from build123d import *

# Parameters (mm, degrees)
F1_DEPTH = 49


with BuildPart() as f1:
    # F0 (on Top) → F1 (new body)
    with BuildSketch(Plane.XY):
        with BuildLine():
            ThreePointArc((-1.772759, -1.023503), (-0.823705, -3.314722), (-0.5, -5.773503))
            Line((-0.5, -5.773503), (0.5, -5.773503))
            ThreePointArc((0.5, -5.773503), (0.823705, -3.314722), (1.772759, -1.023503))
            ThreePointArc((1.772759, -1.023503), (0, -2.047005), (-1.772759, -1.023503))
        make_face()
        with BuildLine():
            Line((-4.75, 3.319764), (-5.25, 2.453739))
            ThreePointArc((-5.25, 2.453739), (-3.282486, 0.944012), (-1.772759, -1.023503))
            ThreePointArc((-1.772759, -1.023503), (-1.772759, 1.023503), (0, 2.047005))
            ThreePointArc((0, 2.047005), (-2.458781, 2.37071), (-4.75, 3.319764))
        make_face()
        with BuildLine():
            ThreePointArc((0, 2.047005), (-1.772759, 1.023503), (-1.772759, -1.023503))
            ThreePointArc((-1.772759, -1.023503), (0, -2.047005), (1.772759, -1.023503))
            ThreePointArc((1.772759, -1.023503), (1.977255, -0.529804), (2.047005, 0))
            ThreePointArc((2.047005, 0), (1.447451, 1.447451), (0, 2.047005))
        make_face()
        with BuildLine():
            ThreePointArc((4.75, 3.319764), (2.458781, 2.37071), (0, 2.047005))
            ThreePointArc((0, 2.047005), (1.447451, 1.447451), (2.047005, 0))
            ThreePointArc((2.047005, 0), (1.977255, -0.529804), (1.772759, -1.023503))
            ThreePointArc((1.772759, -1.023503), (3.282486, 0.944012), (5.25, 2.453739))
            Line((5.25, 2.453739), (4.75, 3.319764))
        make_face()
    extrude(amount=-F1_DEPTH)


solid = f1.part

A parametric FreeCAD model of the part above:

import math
import FreeCAD as App
import Part
import Sketcher
Q = App.Units.Quantity

doc = App.newDocument("Part")
body = doc.addObject("PartDesign::Body", "Body")

sketch1 = doc.addObject("Sketcher::SketchObject", "Sketch")
body.addObject(sketch1)
sketch1.AttachmentSupport = (doc.XY_Plane, [""])
sketch1.MapMode = "FlatFace"
sketch1.addGeometry([
    Part.ArcOfCircle(Part.Circle(App.Vector(-10, -5.8, 0), App.Vector(0, 0, 1), 9.5), math.radians(0), math.radians(30)),
    Part.LineSegment(App.Vector(-0.5, -5.8, 0), App.Vector(0.5, -5.8, 0)),
    Part.ArcOfCircle(Part.Circle(App.Vector(10, -5.8, 0), App.Vector(0, 0, 1), 9.5), math.radians(150), math.radians(180)),
    Part.ArcOfCircle(Part.Circle(App.Vector(10, -5.8, 0), App.Vector(0, 0, 1), 9.5), math.radians(120), math.radians(150)),
    Part.LineSegment(App.Vector(5.2, 2.5, 0), App.Vector(4.8, 3.3, 0)),
    Part.ArcOfCircle(Part.Circle(App.Vector(0, 11.5, 0), App.Vector(0, 0, 1), 9.5), math.radians(-90), math.radians(-60)),
    Part.ArcOfCircle(Part.Circle(App.Vector(0, 11.5, 0), App.Vector(0, 0, 1), 9.5), math.radians(-120), math.radians(-90)),
    Part.LineSegment(App.Vector(-4.8, 3.3, 0), App.Vector(-5.2, 2.5, 0)),
    Part.ArcOfCircle(Part.Circle(App.Vector(-10, -5.8, 0), App.Vector(0, 0, 1), 9.5), math.radians(30), math.radians(60)),
], False)
sketch1.addConstraint([
    Sketcher.Constraint("Coincident", 0, 1, 1, 1),
    Sketcher.Constraint("Coincident", 1, 2, 2, 2),
    Sketcher.Constraint("Tangent", 2, 1, 3, 2),
    Sketcher.Constraint("Coincident", 3, 1, 4, 1),
    Sketcher.Constraint("Coincident", 4, 2, 5, 2),
    Sketcher.Constraint("Tangent", 5, 1, 6, 2),
    Sketcher.Constraint("Coincident", 6, 1, 7, 1),
    Sketcher.Constraint("Coincident", 7, 2, 8, 2),
    Sketcher.Constraint("Tangent", 8, 1, 0, 2),
    Sketcher.Constraint("Horizontal", 1),
    Sketcher.Constraint("Equal", 0, 2),
    Sketcher.Constraint("Equal", 2, 5),
    Sketcher.Constraint("Equal", 5, 6),
    Sketcher.Constraint("Equal", 3, 8),
    Sketcher.Constraint("Symmetric", 0, 3, 2, 3, -2),
    Sketcher.Constraint("Symmetric", 4, 2, 6, 1, -2),
    Sketcher.Constraint("PointOnObject", 5, 1, -2),
    Sketcher.Constraint("Horizontal", 8, 3, 0, 1),
    Sketcher.Constraint("Horizontal", 3, 1, 7, 2),
    Sketcher.Constraint("Horizontal", 2, 1, 8, 1),
    Sketcher.Constraint("Radius", 3, Q("9.500001 mm")),
    Sketcher.Constraint("DistanceX", 1, 1, 1, 2, Q("1 mm")),
    Sketcher.Constraint("Angle", 4, Q("120.000012 deg")),
    Sketcher.Constraint("Distance", 4, Q("1 mm")),
    Sketcher.Constraint("DistanceX", -1, 1, 3, 3, Q("10.000002 mm")),
    Sketcher.Constraint("DistanceX", 6, 1, 4, 2, Q("9.5 mm")),
    Sketcher.Constraint("DistanceY", 1, 2, 2, 1, Q("4.75 mm")),
    Sketcher.Constraint("DistanceY", -1, 1, 5, 3, Q("11.54701 mm")),
])
pad1 = doc.addObject("PartDesign::Pad", "Pad")
body.addObject(pad1)
pad1.Profile = sketch1
pad1.Length = 49
pad1.Reversed = True

doc.recompute()
